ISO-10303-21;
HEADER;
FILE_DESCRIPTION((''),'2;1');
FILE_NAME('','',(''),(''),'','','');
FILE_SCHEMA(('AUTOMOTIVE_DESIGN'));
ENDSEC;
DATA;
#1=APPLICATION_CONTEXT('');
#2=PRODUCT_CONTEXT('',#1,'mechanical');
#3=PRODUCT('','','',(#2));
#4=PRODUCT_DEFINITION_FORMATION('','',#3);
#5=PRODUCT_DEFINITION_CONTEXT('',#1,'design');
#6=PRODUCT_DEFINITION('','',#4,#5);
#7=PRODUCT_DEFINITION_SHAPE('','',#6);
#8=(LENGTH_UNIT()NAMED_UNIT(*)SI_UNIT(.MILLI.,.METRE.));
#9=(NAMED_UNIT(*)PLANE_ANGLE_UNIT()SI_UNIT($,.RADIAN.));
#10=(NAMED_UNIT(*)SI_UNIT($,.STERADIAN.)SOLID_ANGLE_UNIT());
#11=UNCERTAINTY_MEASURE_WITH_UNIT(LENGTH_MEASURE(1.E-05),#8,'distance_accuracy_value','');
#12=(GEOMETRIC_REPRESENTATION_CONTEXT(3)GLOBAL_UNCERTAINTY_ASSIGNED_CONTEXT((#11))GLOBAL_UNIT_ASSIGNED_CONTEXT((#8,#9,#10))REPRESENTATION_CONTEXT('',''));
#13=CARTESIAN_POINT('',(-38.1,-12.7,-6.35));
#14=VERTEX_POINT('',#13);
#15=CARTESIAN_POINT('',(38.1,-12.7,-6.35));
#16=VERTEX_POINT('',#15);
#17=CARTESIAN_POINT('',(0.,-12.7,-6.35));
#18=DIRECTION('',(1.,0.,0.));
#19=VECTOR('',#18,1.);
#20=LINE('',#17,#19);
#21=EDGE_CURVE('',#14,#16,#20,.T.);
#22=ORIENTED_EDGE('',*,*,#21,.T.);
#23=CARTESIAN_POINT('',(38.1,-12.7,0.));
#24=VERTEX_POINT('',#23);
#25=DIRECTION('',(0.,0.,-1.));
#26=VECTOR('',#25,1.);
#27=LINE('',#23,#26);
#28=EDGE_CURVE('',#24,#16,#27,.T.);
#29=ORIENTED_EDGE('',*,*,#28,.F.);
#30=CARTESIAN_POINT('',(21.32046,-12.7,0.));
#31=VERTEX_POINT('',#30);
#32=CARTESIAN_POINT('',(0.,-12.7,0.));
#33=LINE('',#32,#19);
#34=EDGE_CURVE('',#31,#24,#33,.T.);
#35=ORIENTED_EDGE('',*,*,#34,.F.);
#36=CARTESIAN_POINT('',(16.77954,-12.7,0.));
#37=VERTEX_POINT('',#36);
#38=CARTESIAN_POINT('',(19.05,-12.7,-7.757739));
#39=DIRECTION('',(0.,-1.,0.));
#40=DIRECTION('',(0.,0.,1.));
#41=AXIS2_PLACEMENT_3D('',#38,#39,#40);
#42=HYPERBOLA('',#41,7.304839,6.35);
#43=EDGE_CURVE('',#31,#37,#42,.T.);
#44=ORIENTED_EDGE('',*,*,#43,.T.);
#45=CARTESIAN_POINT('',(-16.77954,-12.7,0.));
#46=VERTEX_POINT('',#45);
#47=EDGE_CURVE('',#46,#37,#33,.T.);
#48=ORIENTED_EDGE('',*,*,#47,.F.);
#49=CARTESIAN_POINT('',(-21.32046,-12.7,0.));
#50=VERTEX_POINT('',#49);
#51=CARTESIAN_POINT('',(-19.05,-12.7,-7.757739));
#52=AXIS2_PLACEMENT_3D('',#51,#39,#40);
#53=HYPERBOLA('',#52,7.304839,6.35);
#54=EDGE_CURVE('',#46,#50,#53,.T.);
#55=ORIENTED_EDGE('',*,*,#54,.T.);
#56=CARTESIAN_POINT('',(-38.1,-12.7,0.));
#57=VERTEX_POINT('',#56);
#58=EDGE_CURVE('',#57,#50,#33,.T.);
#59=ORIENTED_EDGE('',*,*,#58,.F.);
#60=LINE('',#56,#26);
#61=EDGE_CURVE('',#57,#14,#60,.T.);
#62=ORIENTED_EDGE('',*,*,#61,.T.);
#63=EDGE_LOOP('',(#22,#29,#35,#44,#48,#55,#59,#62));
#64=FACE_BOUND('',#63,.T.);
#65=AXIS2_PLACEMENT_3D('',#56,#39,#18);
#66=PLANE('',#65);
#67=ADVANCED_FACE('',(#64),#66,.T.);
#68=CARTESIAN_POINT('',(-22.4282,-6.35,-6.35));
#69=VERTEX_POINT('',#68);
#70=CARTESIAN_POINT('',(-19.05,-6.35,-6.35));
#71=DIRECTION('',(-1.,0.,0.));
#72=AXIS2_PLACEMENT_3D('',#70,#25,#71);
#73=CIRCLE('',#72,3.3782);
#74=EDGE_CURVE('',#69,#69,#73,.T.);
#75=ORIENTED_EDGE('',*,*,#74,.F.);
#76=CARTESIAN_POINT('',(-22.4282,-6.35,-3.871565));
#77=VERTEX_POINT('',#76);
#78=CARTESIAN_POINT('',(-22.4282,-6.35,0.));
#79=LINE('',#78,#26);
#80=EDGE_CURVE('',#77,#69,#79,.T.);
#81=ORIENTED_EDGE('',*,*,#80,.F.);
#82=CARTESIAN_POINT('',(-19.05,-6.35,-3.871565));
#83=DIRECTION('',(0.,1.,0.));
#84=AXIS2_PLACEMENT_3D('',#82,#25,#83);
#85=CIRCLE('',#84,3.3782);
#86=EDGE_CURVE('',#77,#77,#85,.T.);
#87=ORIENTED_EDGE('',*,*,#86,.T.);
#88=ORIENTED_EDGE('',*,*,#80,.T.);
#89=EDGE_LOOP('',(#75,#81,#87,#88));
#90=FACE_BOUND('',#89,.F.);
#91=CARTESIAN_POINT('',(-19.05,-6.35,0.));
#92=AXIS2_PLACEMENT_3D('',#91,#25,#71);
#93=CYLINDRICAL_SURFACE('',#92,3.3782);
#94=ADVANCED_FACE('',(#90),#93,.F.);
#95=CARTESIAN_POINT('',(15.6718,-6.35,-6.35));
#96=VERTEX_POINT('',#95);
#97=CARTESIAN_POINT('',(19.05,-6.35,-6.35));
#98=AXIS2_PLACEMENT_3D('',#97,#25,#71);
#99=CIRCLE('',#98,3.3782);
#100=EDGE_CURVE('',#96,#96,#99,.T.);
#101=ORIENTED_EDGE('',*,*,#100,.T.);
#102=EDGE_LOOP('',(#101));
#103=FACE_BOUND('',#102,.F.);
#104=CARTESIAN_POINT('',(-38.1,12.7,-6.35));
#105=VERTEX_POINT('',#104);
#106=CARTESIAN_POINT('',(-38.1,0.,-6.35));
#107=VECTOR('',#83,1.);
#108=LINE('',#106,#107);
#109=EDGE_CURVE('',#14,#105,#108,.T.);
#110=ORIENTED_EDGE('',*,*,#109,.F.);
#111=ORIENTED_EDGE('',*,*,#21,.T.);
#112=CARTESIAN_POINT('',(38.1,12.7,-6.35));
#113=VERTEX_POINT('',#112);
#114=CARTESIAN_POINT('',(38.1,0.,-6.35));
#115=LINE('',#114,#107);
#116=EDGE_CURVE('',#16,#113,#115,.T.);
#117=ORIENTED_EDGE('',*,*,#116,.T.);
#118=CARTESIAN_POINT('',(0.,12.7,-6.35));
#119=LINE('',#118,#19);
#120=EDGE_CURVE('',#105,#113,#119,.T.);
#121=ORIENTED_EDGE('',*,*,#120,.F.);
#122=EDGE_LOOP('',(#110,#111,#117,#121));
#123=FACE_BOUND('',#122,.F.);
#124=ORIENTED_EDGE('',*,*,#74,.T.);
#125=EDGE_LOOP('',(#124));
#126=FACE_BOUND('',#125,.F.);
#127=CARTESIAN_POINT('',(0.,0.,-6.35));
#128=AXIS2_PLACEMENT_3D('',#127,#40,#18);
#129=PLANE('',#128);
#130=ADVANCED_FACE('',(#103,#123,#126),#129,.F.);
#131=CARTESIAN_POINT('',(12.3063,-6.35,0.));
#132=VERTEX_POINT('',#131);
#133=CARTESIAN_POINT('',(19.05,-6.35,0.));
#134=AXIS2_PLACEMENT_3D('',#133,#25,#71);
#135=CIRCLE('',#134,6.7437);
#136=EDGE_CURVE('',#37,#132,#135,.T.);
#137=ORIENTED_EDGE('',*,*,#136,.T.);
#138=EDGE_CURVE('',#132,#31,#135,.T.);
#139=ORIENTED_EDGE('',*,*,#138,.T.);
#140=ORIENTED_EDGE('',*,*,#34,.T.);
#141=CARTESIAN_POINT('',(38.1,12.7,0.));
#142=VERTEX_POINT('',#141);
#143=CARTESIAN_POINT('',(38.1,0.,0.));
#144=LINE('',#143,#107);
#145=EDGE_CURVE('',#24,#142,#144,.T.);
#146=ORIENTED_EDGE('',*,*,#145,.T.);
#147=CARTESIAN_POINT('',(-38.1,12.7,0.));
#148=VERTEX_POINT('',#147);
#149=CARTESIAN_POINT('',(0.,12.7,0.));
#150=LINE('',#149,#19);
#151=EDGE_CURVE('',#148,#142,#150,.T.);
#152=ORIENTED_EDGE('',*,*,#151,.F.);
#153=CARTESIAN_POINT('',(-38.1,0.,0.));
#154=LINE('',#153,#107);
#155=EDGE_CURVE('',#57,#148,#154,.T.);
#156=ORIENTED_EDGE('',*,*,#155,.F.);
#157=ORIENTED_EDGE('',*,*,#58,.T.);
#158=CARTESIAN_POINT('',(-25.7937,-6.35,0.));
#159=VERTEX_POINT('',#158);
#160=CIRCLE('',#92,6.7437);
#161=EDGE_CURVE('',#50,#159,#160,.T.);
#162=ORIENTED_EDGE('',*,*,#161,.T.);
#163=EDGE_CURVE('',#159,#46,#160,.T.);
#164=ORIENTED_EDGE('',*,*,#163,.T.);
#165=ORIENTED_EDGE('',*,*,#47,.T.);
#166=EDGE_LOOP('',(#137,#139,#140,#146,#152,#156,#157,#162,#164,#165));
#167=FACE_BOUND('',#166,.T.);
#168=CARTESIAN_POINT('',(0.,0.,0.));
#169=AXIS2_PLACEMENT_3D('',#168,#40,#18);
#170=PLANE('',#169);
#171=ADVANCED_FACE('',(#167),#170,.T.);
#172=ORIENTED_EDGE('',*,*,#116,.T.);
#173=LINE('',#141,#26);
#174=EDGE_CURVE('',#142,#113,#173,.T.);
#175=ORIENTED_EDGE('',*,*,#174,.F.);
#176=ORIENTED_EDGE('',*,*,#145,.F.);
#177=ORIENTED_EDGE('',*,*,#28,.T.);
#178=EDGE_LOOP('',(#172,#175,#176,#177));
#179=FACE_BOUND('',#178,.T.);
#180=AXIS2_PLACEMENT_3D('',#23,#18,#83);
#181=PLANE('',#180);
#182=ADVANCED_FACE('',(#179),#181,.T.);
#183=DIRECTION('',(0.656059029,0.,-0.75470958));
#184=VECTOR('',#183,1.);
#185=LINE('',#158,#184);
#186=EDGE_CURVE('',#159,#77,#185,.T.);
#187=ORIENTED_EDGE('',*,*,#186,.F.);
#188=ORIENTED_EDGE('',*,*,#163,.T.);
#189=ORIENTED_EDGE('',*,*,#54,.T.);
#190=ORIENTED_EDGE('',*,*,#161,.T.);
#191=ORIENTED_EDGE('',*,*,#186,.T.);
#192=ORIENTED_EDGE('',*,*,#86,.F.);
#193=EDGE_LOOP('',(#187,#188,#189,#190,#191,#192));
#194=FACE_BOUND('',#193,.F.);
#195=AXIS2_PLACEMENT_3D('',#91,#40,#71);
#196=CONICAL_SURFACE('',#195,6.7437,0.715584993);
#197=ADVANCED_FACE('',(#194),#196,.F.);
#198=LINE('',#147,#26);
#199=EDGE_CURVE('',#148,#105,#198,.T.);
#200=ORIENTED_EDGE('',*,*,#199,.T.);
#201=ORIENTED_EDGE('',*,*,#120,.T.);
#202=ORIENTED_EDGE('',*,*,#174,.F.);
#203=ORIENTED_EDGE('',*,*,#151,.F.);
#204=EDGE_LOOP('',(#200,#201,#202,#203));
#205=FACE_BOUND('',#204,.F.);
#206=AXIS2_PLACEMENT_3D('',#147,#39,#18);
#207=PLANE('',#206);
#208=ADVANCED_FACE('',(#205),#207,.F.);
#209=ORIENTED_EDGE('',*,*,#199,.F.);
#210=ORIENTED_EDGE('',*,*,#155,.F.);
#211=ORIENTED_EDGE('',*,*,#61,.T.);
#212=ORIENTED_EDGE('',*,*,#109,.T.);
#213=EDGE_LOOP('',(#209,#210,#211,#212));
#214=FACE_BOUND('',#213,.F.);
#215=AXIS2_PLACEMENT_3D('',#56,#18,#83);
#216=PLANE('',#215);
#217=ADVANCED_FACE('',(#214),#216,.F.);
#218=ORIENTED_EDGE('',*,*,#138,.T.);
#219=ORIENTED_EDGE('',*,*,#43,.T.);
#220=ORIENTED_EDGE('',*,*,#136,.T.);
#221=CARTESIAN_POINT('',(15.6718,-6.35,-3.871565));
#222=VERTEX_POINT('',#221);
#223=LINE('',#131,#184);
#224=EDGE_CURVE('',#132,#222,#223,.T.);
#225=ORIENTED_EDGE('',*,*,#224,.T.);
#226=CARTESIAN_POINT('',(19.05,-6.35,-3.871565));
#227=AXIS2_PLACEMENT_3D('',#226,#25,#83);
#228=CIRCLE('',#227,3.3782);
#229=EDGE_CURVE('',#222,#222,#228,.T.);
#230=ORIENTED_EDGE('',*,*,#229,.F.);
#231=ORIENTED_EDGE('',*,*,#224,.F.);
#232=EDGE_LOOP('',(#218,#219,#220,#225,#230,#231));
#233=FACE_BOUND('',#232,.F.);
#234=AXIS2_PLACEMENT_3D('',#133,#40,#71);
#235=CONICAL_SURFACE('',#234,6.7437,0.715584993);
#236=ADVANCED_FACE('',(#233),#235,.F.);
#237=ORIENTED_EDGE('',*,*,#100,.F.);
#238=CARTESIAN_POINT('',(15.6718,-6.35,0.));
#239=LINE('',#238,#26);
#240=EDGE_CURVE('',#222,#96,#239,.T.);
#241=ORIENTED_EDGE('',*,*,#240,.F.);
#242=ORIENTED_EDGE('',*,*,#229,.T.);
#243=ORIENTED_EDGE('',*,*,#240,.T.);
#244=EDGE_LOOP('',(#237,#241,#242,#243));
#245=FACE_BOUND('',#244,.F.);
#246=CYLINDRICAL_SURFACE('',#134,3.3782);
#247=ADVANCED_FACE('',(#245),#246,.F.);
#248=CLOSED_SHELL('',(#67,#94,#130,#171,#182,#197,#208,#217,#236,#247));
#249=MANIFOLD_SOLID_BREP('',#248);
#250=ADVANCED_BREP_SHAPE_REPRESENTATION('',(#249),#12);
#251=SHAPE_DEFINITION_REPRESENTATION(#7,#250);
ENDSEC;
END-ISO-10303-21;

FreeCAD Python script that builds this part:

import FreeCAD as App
import Part
import Sketcher

V = App.Vector
Q = App.Units.Quantity


def add_polygon(sketch, points):
    """Adds a closed chain of lines whose ends are joined by coincident constraints."""
    first, n = sketch.GeometryCount, len(points)
    for a, b in zip(points, points[1:] + points[:1]):
        sketch.addGeometry(Part.LineSegment(App.Vector(*a, 0), App.Vector(*b, 0)), False)
    for i in range(n):
        sketch.addConstraint(Sketcher.Constraint("Coincident", first + i, 2, first + (i + 1) % n, 1))

doc = App.newDocument("Part")
params = doc.addObject("Spreadsheet::Sheet", "Params")
for row, (alias, value) in enumerate([
    ("sketch1_width", "3 in"),
    ("sketch1_height", "1 in"),
    ("pad1_length", "0.25 in"),
    ("sketch2_diameter", "0.266 in"),
    ("hole_diameter", "0.266 in"),
    ("hole_depth", "0.75 in"),
    ("hole_csink_diameter", "0.531 in"),
], start=1):
    params.set(f"A{row}", alias)
    params.set(f"B{row}", "=" + value)
    params.setAlias(f"B{row}", alias)

body = doc.addObject("PartDesign::Body", "Body")

# Sketch on XY plane
sketch1 = body.newObject("Sketcher::SketchObject", "Sketch")
sketch1.AttachmentSupport = (doc.getObject("XY_Plane"), [""])
sketch1.MapMode = "FlatFace"
add_polygon(sketch1, [(-38, 13), (-38, -13), (38, -13), (38, 13)])  # lines 0-3
sketch1.addConstraint([
    Sketcher.Constraint("Vertical", 0),
    Sketcher.Constraint("Horizontal", 1),
    Sketcher.Constraint("Vertical", 2),
    Sketcher.Constraint("Horizontal", 3),
    Sketcher.Constraint("Symmetric", 0, 2, 2, 2, -1, 1),
    Sketcher.Constraint("DistanceX", 1, 1, 1, 2, Q("3 in")),
    Sketcher.Constraint("DistanceY", 0, 2, 0, 1, Q("1 in")),
])
sketch1.setExpression("Constraints[9]", "Params.sketch1_width")
sketch1.setExpression("Constraints[10]", "Params.sketch1_height")
pad1 = body.newObject("PartDesign::Pad", "Pad")
pad1.Profile = sketch1
pad1.setExpression("Length", "Params.pad1_length")
pad1.Reversed = True

# Sketch on XY plane
sketch2 = body.newObject("Sketcher::SketchObject", "Sketch001")
sketch2.AttachmentSupport = (doc.getObject("XY_Plane"), [""])
sketch2.MapMode = "FlatFace"
sketch2.addGeometry([
    Part.Circle(V(-19.1, -6.3, 0), V(0, 0, 1), 3.4),
    Part.Circle(V(19.1, -6.3, 0), V(0, 0, 1), 3.4),
], False)
sketch2.addConstraint([
    Sketcher.Constraint("Equal", 0, 1),
    Sketcher.Constraint("Symmetric", 0, 3, 1, 3, -2),
    Sketcher.Constraint("Diameter", 0, Q("0.266 in")),
    Sketcher.Constraint("DistanceX", 0, 3, 1, 3, Q("1.5 in")),
    Sketcher.Constraint("DistanceY", 0, 3, -1, 1, Q("0.25 in")),
])
sketch2.setExpression("Constraints[2]", "Params.sketch2_diameter")
doc.recompute()
hole = body.newObject("PartDesign::Hole", "Hole")
hole.Profile = sketch2
hole.ThreadType = "None"
hole.setExpression("Diameter", "Params.hole_diameter")
hole.DepthType = "Dimension"
hole.setExpression("Depth", "Params.hole_depth")
hole.DrillPoint = "Angled"
hole.DrillPointAngle = 118
hole.HoleCutType = "Countersink"
hole.setExpression("HoleCutDiameter", "Params.hole_csink_diameter")
hole.HoleCutCountersinkAngle = 82

doc.recompute()
